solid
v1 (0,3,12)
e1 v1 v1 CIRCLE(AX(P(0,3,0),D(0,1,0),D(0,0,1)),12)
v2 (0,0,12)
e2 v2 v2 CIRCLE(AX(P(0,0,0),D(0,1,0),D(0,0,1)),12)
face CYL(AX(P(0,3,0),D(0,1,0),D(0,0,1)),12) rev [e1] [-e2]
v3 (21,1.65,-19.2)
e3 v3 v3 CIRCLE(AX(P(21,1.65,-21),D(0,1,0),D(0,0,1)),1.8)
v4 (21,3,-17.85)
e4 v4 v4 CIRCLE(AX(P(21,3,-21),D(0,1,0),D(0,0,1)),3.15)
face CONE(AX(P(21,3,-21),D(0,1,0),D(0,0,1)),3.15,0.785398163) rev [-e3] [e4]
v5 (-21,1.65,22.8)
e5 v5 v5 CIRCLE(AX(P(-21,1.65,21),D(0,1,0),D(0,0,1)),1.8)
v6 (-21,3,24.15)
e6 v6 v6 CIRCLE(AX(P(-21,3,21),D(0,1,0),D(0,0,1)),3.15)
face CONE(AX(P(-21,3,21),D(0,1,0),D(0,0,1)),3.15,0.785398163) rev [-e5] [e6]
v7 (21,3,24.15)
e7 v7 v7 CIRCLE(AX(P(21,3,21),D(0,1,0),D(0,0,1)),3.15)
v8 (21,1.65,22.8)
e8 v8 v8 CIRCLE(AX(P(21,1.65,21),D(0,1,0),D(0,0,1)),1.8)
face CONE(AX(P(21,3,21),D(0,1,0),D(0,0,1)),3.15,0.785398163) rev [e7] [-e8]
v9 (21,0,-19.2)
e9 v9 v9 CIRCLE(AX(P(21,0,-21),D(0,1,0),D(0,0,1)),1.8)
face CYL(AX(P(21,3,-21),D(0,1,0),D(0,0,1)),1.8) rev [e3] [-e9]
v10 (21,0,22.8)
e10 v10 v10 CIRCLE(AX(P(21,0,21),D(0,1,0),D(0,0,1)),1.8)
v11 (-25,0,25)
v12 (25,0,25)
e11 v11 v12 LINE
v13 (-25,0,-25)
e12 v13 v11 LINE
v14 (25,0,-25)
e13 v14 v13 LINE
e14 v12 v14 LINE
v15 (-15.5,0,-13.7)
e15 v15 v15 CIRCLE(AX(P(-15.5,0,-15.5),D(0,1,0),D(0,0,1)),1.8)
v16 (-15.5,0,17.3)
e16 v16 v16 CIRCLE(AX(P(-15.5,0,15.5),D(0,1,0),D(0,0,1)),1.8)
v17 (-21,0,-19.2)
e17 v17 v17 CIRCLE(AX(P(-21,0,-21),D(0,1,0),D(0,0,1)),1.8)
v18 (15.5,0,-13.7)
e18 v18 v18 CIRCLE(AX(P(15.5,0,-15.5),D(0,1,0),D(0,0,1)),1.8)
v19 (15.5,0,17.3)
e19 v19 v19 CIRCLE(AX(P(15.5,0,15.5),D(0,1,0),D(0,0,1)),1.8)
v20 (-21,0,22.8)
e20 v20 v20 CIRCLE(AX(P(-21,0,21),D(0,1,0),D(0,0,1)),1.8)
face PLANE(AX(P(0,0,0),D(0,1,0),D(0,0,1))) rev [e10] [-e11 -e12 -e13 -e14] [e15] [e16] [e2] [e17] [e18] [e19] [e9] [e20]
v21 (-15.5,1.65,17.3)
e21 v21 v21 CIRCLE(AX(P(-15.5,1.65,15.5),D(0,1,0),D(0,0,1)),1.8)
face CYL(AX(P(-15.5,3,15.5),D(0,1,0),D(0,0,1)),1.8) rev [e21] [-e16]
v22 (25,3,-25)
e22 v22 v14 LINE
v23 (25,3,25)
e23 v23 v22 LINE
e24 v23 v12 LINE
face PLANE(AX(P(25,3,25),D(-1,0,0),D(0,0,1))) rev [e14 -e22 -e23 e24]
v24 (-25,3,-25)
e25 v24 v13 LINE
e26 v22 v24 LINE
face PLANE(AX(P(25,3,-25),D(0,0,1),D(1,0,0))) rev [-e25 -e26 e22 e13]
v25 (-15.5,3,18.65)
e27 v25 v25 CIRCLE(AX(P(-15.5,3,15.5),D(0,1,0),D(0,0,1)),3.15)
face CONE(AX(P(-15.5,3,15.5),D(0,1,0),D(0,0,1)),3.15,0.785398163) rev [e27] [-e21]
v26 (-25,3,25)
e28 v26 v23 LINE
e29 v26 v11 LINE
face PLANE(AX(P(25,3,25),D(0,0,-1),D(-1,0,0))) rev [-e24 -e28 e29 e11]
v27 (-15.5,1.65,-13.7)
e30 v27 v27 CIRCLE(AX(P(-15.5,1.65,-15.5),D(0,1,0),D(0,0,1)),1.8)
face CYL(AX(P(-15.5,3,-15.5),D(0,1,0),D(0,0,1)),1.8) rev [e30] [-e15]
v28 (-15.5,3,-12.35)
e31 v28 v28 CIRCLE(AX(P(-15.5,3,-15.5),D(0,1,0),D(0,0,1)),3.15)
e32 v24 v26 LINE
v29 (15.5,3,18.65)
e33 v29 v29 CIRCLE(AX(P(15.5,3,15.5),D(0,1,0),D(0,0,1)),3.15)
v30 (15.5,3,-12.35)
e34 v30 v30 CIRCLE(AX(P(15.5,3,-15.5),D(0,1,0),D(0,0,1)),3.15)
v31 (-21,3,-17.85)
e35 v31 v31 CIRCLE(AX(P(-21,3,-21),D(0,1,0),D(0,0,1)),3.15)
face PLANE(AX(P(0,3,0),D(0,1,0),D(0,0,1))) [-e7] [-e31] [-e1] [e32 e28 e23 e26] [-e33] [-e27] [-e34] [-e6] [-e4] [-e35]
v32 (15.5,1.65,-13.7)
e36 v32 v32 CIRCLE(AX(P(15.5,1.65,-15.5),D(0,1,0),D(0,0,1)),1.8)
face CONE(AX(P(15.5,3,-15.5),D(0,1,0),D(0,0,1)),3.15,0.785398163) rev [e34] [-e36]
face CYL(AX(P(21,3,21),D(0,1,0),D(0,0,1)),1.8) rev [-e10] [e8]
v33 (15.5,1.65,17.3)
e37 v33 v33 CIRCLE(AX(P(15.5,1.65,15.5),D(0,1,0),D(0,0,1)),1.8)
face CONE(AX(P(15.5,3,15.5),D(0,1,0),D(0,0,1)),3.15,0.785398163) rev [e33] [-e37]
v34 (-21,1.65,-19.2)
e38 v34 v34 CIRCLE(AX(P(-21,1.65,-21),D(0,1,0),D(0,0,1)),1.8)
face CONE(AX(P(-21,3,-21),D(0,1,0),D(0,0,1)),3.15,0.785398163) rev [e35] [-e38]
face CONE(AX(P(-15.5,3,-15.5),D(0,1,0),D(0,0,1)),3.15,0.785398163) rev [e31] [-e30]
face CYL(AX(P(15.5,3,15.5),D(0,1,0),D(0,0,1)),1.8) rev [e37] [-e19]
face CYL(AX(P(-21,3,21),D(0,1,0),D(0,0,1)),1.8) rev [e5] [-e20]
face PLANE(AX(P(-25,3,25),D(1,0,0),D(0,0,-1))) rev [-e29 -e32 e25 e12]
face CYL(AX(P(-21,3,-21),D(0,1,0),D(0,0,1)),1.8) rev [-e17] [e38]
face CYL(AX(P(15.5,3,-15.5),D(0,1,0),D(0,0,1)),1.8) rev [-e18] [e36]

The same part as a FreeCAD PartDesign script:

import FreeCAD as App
import Part
import Sketcher

V = App.Vector
Q = App.Units.Quantity


def add_polygon(sketch, points):
    """Adds a closed chain of lines whose ends are joined by coincident constraints."""
    first, n = sketch.GeometryCount, len(points)
    for a, b in zip(points, points[1:] + points[:1]):
        sketch.addGeometry(Part.LineSegment(App.Vector(*a, 0), App.Vector(*b, 0)), False)
    for i in range(n):
        sketch.addConstraint(Sketcher.Constraint("Coincident", first + i, 2, first + (i + 1) % n, 1))

doc = App.newDocument("Part")
body = doc.addObject("PartDesign::Body", "Body")

# Sketch on XZ plane
sketch1 = body.newObject("Sketcher::SketchObject", "Sketch")
sketch1.AttachmentSupport = (doc.getObject("XZ_Plane"), [""])
sketch1.MapMode = "FlatFace"
add_polygon(sketch1, [(-25, -25), (-25, 25), (25, 25), (25, -25)])  # lines 0-3
sketch1.addConstraint([
    Sketcher.Constraint("Vertical", 0),
    Sketcher.Constraint("Horizontal", 1),
    Sketcher.Constraint("Vertical", 2),
    Sketcher.Constraint("Horizontal", 3),
    Sketcher.Constraint("Symmetric", 0, 2, 2, 2, -1, 1),
    Sketcher.Constraint("Equal", 3, 0),
    Sketcher.Constraint("DistanceX", 1, 1, 1, 2, 50.0),
])
pad1 = body.newObject("PartDesign::Pad", "Pad")
pad1.Profile = sketch1
pad1.Length = 3
pad1.Reversed = True

# Sketch on YZ plane
sketch2 = body.newObject("Sketcher::SketchObject", "Sketch001")
sketch2.AttachmentSupport = (doc.getObject("YZ_Plane"), [""])
sketch2.MapMode = "FlatFace"
sketch2.AttachmentOffset = App.Placement(V(0, 0, -21), App.Rotation())
add_polygon(sketch2, [(0, 21), (3, 21), (3, 24.15), (1.65, 22.8), (0, 22.8)])  # lines 0-4
sketch2.addGeometry(Part.LineSegment(V(3, 21, 0), V(0, 21, 0)), True)  # axis
sketch2.addConstraint([
    Sketcher.Constraint("Horizontal", 0),
    Sketcher.Constraint("Vertical", 1),
    Sketcher.Constraint("Horizontal", 3),
    Sketcher.Constraint("Vertical", 4),
    Sketcher.Constraint("Horizontal", 5),
    Sketcher.Constraint("Coincident", 5, 1, 0, 2),
    Sketcher.Constraint("PointOnObject", 3, 2, -2),
    Sketcher.Constraint("PointOnObject", 5, 2, -2),
    Sketcher.Constraint("DistanceX", 0, 1, 0, 2, 3.0),
    Sketcher.Constraint("Angle", 2, Q("-135 deg")),
    Sketcher.Constraint("DistanceY", 4, 2, 4, 1, 1.8),
    Sketcher.Constraint("DistanceY", -1, 1, 0, 2, 21.0),
    Sketcher.Constraint("DistanceX", 3, 2, 3, 1, 1.65),
])
groove = body.newObject("PartDesign::Groove", "Groove")
groove.Profile = sketch2
groove.ReferenceAxis = (sketch2, ["Axis0"])
groove.Angle = 360
doc.recompute()

linearpattern = body.newObject("PartDesign::LinearPattern", "LinearPattern")
linearpattern.Originals = [groove]
linearpattern.Direction = (doc.getObject("Z_Axis"), [""])
linearpattern.Mode = "offset"
linearpattern.Offset = 42
linearpattern.Occurrences = 2
linearpattern.Reversed = True
body.Tip = linearpattern
doc.recompute()

datumline = body.newObject("PartDesign::Line", "DatumLine")
datumline.Placement = App.Placement(V(0, 0, 0), App.Rotation(V(0, 0, 1), V(0.707106781, 0, -0.707106781)))
linearpattern2 = body.newObject("PartDesign::LinearPattern", "LinearPattern001")
linearpattern2.Originals = [groove]
linearpattern2.Direction = (datumline, [""])
linearpattern2.Mode = "offset"
linearpattern2.Offset = 59.39697
linearpattern2.Occurrences = 2
body.Tip = linearpattern2
doc.recompute()

linearpattern3 = body.newObject("PartDesign::LinearPattern", "LinearPattern002")
linearpattern3.Originals = [groove]
linearpattern3.Direction = (doc.getObject("X_Axis"), [""])
linearpattern3.Mode = "offset"
linearpattern3.Offset = 42
linearpattern3.Occurrences = 2
body.Tip = linearpattern3

# Sketch on XZ plane
sketch3 = body.newObject("Sketcher::SketchObject", "Sketch002")
sketch3.AttachmentSupport = (doc.getObject("XZ_Plane"), [""])
sketch3.MapMode = "FlatFace"
sketch3.AttachmentOffset = App.Placement(V(0, 0, -3), App.Rotation())
sketch3.addGeometry(Part.Circle(V(0, 0, 0), V(0, 0, 1), 12), False)
sketch3.addConstraint([
    Sketcher.Constraint("Coincident", 0, 3, -1, 1),
    Sketcher.Constraint("Diameter", 0, 24.0),
])
doc.recompute()
hole = body.newObject("PartDesign::Hole", "Hole")
hole.Profile = sketch3
hole.ThreadType = "None"
hole.Diameter = 24
hole.DepthType = "ThroughAll"
hole.Reversed = True

# Sketch on XZ plane
sketch4 = body.newObject("Sketcher::SketchObject", "Sketch003")
sketch4.AttachmentSupport = (doc.getObject("XZ_Plane"), [""])
sketch4.MapMode = "FlatFace"
sketch4.addGeometry(Part.Circle(V(0, 0, 0), V(0, 0, 1), 12), False)
sketch4.addConstraint([
    Sketcher.Constraint("Coincident", 0, 3, -1, 1),
    Sketcher.Constraint("Diameter", 0, 24.0),
])
doc.recompute()
hole2 = body.newObject("PartDesign::Hole", "Hole001")
hole2.Profile = sketch4
hole2.ThreadType = "None"
hole2.Diameter = 24
hole2.DepthType = "ThroughAll"

# Sketch on XZ plane
sketch5 = body.newObject("Sketcher::SketchObject", "Sketch004")
sketch5.AttachmentSupport = (doc.getObject("XZ_Plane"), [""])
sketch5.MapMode = "FlatFace"
sketch5.AttachmentOffset = App.Placement(V(0, 0, 166.048748), App.Rotation())
sketch5.addGeometry(Part.Circle(V(-62.061079, 0, 0), V(0, 0, 1), 12), False)
sketch5.addConstraint([
    Sketcher.Constraint("PointOnObject", 0, 3, -1),
    Sketcher.Constraint("Diameter", 0, 24.0),
    Sketcher.Constraint("DistanceX", 0, 3, -1, 1, 62.061079),
])
doc.recompute()
hole3 = body.newObject("PartDesign::Hole", "Hole002")
hole3.Profile = sketch5
hole3.ThreadType = "None"
hole3.Diameter = 24
hole3.DepthType = "ThroughAll"
hole3.Reversed = True

# Sketch on YZ plane
sketch6 = body.newObject("Sketcher::SketchObject", "Sketch005")
sketch6.AttachmentSupport = (doc.getObject("YZ_Plane"), [""])
sketch6.MapMode = "FlatFace"
sketch6.AttachmentOffset = App.Placement(V(0, 0, -15.5), App.Rotation())
add_polygon(sketch6, [(0, -15.5), (3, -15.5), (3, -12.35), (1.65, -13.7), (0, -13.7)])  # lines 0-4
sketch6.addGeometry(Part.LineSegment(V(3, -15.5, 0), V(0, -15.5, 0)), True)  # axis
sketch6.addConstraint([
    Sketcher.Constraint("Horizontal", 0),
    Sketcher.Constraint("Vertical", 1),
    Sketcher.Constraint("Horizontal", 3),
    Sketcher.Constraint("Vertical", 4),
    Sketcher.Constraint("Horizontal", 5),
    Sketcher.Constraint("Coincident", 5, 1, 0, 2),
    Sketcher.Constraint("PointOnObject", 3, 2, -2),
    Sketcher.Constraint("PointOnObject", 5, 2, -2),
    Sketcher.Constraint("DistanceX", 0, 1, 0, 2, 3.0),
    Sketcher.Constraint("Angle", 2, Q("-135 deg")),
    Sketcher.Constraint("DistanceY", 4, 2, 4, 1, 1.8),
    Sketcher.Constraint("DistanceX", 3, 2, 3, 1, 1.65),
    Sketcher.Constraint("DistanceY", 0, 2, -1, 1, 15.5),
])
groove2 = body.newObject("PartDesign::Groove", "Groove001")
groove2.Profile = sketch6
groove2.ReferenceAxis = (sketch6, ["Axis0"])
groove2.Angle = 360
doc.recompute()

linearpattern4 = body.newObject("PartDesign::LinearPattern", "LinearPattern003")
linearpattern4.Originals = [groove2]
linearpattern4.Direction = (doc.getObject("X_Axis"), [""])
linearpattern4.Mode = "offset"
linearpattern4.Offset = 31
linearpattern4.Occurrences = 2
body.Tip = linearpattern4
doc.recompute()

datumline2 = body.newObject("PartDesign::Line", "DatumLine001")
datumline2.Placement = App.Placement(V(0, 0, 0), App.Rotation(V(0, 0, 1), V(0.707106781, 0, 0.707106781)))
linearpattern5 = body.newObject("PartDesign::LinearPattern", "LinearPattern004")
linearpattern5.Originals = [groove2]
linearpattern5.Direction = (datumline2, [""])
linearpattern5.Mode = "offset"
linearpattern5.Offset = 43.84062
linearpattern5.Occurrences = 2
body.Tip = linearpattern5
doc.recompute()

linearpattern6 = body.newObject("PartDesign::LinearPattern", "LinearPattern005")
linearpattern6.Originals = [groove2]
linearpattern6.Direction = (doc.getObject("Z_Axis"), [""])
linearpattern6.Mode = "offset"
linearpattern6.Offset = 31
linearpattern6.Occurrences = 2
body.Tip = linearpattern6

doc.recompute()
